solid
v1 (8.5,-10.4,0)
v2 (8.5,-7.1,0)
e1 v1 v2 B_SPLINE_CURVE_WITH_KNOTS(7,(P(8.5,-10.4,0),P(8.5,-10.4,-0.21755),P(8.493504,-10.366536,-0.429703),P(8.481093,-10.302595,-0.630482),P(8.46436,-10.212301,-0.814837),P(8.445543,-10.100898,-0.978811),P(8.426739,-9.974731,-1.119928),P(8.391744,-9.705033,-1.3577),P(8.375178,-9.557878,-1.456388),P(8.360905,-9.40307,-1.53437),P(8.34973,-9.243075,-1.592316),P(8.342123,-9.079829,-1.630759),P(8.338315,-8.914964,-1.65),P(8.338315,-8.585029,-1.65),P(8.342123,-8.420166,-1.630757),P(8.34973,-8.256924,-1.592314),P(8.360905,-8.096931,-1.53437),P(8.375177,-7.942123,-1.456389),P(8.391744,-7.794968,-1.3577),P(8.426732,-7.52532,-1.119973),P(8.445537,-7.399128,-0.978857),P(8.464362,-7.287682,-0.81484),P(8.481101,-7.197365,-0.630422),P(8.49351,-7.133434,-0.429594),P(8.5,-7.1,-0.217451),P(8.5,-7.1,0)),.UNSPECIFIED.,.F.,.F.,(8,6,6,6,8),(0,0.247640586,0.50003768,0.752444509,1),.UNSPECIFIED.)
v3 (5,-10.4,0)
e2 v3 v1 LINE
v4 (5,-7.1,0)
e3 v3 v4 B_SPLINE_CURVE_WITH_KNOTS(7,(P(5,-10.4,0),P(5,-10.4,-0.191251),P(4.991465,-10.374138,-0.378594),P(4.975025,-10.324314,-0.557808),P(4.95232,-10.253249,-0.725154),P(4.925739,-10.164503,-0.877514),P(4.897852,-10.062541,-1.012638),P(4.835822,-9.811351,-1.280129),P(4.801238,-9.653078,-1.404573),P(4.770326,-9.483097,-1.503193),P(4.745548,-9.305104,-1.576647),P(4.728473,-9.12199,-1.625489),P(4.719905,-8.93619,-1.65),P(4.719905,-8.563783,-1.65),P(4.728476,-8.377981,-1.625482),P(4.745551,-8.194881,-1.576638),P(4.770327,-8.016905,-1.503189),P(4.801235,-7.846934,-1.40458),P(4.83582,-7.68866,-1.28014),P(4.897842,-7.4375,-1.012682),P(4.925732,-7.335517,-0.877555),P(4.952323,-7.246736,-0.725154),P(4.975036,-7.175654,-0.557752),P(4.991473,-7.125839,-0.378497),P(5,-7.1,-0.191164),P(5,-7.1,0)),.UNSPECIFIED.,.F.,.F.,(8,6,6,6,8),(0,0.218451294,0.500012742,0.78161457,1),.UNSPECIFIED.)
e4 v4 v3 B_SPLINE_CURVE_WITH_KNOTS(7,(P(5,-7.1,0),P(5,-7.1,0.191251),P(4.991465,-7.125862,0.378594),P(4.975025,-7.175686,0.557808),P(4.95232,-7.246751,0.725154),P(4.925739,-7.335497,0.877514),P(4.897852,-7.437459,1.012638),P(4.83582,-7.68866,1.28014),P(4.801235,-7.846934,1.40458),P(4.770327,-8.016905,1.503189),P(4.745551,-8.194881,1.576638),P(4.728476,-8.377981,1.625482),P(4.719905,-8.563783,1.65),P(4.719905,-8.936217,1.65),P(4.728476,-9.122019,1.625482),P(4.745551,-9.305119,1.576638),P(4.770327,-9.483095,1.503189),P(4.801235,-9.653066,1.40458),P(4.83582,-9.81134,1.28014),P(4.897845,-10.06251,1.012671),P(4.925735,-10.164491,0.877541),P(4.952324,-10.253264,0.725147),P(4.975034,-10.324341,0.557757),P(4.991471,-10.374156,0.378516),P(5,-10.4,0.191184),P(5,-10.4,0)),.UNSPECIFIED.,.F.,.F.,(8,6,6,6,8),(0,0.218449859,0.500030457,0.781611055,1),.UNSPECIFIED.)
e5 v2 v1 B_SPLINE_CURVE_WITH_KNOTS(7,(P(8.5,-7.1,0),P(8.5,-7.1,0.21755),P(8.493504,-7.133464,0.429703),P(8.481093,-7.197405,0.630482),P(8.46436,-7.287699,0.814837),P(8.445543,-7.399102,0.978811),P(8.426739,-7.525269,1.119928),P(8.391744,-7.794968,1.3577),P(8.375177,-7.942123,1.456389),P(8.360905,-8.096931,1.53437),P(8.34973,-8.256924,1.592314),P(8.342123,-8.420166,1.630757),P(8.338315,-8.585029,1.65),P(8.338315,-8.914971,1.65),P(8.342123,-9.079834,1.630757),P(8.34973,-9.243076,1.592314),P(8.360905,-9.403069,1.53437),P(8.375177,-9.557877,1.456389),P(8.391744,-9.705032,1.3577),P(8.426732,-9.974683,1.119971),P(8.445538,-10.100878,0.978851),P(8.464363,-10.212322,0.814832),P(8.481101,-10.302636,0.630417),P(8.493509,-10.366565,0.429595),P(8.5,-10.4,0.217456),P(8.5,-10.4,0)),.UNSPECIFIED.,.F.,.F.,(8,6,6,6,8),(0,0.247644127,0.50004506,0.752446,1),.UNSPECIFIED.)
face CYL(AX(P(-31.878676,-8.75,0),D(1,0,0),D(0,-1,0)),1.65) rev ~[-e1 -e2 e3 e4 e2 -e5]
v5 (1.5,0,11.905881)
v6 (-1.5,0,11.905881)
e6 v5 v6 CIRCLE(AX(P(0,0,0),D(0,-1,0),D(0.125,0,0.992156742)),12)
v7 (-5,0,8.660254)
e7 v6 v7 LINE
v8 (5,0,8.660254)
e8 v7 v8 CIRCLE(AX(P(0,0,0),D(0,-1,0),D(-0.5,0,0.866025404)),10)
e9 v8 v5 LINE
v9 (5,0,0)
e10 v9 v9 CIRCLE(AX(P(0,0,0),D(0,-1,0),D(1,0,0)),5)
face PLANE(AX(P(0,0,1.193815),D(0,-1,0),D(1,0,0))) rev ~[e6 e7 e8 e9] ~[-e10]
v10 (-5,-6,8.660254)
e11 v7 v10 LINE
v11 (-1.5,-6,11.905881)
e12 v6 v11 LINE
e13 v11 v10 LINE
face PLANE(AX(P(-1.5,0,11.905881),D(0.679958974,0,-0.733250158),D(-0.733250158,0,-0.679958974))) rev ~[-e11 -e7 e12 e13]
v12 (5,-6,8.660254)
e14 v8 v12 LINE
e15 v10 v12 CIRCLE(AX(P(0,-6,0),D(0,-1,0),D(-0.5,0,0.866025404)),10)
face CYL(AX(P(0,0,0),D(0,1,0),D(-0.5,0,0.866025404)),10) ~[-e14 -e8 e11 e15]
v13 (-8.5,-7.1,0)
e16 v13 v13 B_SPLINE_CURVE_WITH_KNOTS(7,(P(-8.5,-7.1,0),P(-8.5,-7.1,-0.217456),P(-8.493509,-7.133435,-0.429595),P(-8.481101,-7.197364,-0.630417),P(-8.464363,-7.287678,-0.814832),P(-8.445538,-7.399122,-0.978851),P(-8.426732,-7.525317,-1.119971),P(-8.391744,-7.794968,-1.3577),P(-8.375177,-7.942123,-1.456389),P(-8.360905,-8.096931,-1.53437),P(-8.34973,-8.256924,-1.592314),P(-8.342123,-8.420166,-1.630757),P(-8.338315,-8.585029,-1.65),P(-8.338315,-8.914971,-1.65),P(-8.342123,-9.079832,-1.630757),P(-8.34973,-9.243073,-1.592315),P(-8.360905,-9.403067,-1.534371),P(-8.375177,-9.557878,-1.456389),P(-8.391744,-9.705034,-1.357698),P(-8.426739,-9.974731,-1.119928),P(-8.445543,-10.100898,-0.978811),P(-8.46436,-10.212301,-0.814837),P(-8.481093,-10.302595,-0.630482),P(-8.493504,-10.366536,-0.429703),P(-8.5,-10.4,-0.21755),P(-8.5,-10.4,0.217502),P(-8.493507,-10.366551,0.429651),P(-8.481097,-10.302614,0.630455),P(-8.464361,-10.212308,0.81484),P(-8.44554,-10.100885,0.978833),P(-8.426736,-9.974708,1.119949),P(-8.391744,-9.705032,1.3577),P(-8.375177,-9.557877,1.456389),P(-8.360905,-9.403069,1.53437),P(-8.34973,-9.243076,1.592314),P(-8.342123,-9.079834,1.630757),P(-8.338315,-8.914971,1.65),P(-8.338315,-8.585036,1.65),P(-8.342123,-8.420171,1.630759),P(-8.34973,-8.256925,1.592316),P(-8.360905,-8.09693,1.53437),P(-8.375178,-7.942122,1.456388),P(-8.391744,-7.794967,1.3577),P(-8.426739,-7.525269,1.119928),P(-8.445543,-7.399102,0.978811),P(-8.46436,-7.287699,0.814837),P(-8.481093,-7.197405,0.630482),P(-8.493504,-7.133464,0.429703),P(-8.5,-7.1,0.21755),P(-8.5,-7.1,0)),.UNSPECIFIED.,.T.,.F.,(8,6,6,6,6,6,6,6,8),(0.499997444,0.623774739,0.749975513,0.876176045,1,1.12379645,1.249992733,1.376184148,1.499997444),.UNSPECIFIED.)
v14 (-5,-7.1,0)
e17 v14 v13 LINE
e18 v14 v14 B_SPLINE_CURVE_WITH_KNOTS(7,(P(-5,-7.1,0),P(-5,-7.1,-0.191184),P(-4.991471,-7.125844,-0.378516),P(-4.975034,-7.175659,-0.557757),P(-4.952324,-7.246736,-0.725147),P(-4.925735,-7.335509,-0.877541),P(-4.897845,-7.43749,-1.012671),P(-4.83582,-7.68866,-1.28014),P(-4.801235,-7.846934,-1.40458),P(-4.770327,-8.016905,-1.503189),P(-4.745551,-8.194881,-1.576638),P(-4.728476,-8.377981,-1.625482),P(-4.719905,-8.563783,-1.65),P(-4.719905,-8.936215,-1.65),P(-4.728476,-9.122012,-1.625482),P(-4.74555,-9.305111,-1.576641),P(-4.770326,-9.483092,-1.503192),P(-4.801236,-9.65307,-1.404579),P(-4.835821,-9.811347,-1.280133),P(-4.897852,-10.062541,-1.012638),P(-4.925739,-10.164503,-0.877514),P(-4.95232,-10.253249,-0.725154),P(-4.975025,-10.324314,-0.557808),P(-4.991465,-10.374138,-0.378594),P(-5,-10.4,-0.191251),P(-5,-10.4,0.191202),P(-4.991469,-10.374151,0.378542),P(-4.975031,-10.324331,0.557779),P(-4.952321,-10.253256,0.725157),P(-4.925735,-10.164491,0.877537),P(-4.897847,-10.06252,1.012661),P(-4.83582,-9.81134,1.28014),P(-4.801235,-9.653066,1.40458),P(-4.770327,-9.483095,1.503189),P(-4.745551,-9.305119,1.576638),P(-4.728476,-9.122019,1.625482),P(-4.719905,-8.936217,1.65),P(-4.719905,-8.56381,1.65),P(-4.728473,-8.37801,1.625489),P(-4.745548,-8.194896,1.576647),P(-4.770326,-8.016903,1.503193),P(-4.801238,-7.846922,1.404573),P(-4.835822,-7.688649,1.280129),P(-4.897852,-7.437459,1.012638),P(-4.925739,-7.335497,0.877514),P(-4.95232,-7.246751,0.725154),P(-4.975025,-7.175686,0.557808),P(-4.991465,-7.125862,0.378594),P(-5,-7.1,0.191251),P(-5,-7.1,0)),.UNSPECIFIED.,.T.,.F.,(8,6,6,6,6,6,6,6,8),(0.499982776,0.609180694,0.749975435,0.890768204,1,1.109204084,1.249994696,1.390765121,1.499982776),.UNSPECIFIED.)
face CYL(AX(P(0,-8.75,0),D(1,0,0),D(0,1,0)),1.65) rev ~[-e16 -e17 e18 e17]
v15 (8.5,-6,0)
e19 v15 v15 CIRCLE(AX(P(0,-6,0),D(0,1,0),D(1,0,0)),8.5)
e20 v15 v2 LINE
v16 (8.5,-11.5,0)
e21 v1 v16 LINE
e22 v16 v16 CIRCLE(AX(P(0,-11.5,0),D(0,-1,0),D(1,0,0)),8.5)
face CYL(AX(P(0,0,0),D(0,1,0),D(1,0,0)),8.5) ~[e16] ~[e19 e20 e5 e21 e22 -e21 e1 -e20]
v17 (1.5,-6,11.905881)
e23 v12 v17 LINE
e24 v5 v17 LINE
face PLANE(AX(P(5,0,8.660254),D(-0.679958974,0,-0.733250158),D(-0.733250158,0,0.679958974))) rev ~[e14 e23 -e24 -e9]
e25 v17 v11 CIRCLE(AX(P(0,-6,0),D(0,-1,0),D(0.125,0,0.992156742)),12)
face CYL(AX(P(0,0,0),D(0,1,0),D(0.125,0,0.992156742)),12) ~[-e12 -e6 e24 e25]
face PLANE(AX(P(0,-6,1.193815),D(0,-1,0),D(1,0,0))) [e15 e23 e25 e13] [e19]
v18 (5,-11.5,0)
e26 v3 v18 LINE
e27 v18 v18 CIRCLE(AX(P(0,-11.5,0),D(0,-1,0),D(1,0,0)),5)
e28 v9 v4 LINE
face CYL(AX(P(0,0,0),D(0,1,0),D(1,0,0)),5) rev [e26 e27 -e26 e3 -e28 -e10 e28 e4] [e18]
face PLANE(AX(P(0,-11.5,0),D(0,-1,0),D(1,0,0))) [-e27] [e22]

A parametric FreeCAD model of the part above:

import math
import FreeCAD as App
import Part
import Sketcher

V = App.Vector

doc = App.newDocument("Part")
body = doc.addObject("PartDesign::Body", "Body")

sketch1 = body.newObject("Sketcher::SketchObject", "Sketch")
sketch1.AttachmentSupport = (doc.getObject("XZ_Plane"), [""])
sketch1.MapMode = "FlatFace"
sketch1.addGeometry([
    Part.LineSegment(V(-1.5, 11.905881, 0), V(-5, 8.660254, 0)),
    Part.ArcOfCircle(Part.Circle(V(0, 0, 0), V(0, 0, 1), 10), math.radians(120), math.radians(420)),
    Part.LineSegment(V(5, 8.660254, 0), V(1.5, 11.905881, 0)),
    Part.ArcOfCircle(Part.Circle(V(0, 0, 0), V(0, 0, 1), 12), math.radians(82.819244), math.radians(97.180756)),
    Part.Circle(V(0, 0, 0), V(0, 0, 1), 5),
], False)
sketch1.addConstraint([
    Sketcher.Constraint("Coincident", 0, 2, 1, 1),
    Sketcher.Constraint("Coincident", 1, 2, 2, 1),
    Sketcher.Constraint("Coincident", 2, 2, 3, 1),
    Sketcher.Constraint("Coincident", 3, 2, 0, 1),
    Sketcher.Constraint("Coincident", 1, 3, -1, 1),
    Sketcher.Constraint("Coincident", 3, 3, -1, 1),
    Sketcher.Constraint("Coincident", 4, 3, -1, 1),
    Sketcher.Constraint("Horizontal", 0, 2, 1, 2),
    Sketcher.Constraint("Horizontal", 2, 2, 3, 2),
    Sketcher.Constraint("Diameter", 4, 10.0),
    Sketcher.Constraint("Radius", 1, 10.0),
    Sketcher.Constraint("Radius", 3, 12.0),
    Sketcher.Constraint("DistanceX", 0, 2, -1, 1, 5.0),
    Sketcher.Constraint("DistanceX", 3, 2, 2, 2, 3.0),
])
pad1 = body.newObject("PartDesign::Pad", "Pad")
pad1.Profile = sketch1
pad1.Length = 6

sketch2 = body.newObject("Sketcher::SketchObject", "Sketch001")
sketch2.AttachmentSupport = (doc.getObject("XZ_Plane"), [""])
sketch2.MapMode = "FlatFace"
sketch2.addGeometry([
    Part.Circle(V(0, 0, 0), V(0, 0, 1), 8.5),
    Part.Circle(V(0, 0, 0), V(0, 0, 1), 5),
], False)
sketch2.addConstraint([
    Sketcher.Constraint("Coincident", 0, 3, -1, 1),
    Sketcher.Constraint("Coincident", 1, 3, -1, 1),
    Sketcher.Constraint("Diameter", 0, 17.0),
    Sketcher.Constraint("Diameter", 1, 10.0),
])
pad2 = body.newObject("PartDesign::Pad", "Pad001")
pad2.Profile = sketch2
pad2.Length = 11.5

sketch3 = body.newObject("Sketcher::SketchObject", "Sketch002")
sketch3.AttachmentSupport = (doc.getObject("YZ_Plane"), [""])
sketch3.MapMode = "FlatFace"
sketch3.addGeometry(Part.Circle(V(-8.75, 0, 0), V(0, 0, 1), 1.65), False)
sketch3.addConstraint([
    Sketcher.Constraint("PointOnObject", 0, 3, -1),
    Sketcher.Constraint("Diameter", 0, 3.3),
    Sketcher.Constraint("DistanceX", 0, 3, -1, 1, 8.75),
])
pocket1 = body.newObject("PartDesign::Pocket", "Pocket")
pocket1.Profile = sketch3
pocket1.Type = "ThroughAll"

sketch4 = body.newObject("Sketcher::SketchObject", "Sketch003")
sketch4.AttachmentSupport = (doc.getObject("YZ_Plane"), [""])
sketch4.MapMode = "FlatFace"
sketch4.addGeometry(Part.Circle(V(-8.75, 0, 0), V(0, 0, 1), 1.65), False)
sketch4.addConstraint([
    Sketcher.Constraint("PointOnObject", 0, 3, -1),
    Sketcher.Constraint("Diameter", 0, 3.3),
    Sketcher.Constraint("DistanceX", 0, 3, -1, 1, 8.75),
])
doc.recompute()
hole = body.newObject("PartDesign::Hole", "Hole")
hole.Profile = sketch4
hole.ThreadType = "None"
hole.Diameter = 3.3
hole.DepthType = "ThroughAll"
hole.Reversed = True

doc.recompute()
